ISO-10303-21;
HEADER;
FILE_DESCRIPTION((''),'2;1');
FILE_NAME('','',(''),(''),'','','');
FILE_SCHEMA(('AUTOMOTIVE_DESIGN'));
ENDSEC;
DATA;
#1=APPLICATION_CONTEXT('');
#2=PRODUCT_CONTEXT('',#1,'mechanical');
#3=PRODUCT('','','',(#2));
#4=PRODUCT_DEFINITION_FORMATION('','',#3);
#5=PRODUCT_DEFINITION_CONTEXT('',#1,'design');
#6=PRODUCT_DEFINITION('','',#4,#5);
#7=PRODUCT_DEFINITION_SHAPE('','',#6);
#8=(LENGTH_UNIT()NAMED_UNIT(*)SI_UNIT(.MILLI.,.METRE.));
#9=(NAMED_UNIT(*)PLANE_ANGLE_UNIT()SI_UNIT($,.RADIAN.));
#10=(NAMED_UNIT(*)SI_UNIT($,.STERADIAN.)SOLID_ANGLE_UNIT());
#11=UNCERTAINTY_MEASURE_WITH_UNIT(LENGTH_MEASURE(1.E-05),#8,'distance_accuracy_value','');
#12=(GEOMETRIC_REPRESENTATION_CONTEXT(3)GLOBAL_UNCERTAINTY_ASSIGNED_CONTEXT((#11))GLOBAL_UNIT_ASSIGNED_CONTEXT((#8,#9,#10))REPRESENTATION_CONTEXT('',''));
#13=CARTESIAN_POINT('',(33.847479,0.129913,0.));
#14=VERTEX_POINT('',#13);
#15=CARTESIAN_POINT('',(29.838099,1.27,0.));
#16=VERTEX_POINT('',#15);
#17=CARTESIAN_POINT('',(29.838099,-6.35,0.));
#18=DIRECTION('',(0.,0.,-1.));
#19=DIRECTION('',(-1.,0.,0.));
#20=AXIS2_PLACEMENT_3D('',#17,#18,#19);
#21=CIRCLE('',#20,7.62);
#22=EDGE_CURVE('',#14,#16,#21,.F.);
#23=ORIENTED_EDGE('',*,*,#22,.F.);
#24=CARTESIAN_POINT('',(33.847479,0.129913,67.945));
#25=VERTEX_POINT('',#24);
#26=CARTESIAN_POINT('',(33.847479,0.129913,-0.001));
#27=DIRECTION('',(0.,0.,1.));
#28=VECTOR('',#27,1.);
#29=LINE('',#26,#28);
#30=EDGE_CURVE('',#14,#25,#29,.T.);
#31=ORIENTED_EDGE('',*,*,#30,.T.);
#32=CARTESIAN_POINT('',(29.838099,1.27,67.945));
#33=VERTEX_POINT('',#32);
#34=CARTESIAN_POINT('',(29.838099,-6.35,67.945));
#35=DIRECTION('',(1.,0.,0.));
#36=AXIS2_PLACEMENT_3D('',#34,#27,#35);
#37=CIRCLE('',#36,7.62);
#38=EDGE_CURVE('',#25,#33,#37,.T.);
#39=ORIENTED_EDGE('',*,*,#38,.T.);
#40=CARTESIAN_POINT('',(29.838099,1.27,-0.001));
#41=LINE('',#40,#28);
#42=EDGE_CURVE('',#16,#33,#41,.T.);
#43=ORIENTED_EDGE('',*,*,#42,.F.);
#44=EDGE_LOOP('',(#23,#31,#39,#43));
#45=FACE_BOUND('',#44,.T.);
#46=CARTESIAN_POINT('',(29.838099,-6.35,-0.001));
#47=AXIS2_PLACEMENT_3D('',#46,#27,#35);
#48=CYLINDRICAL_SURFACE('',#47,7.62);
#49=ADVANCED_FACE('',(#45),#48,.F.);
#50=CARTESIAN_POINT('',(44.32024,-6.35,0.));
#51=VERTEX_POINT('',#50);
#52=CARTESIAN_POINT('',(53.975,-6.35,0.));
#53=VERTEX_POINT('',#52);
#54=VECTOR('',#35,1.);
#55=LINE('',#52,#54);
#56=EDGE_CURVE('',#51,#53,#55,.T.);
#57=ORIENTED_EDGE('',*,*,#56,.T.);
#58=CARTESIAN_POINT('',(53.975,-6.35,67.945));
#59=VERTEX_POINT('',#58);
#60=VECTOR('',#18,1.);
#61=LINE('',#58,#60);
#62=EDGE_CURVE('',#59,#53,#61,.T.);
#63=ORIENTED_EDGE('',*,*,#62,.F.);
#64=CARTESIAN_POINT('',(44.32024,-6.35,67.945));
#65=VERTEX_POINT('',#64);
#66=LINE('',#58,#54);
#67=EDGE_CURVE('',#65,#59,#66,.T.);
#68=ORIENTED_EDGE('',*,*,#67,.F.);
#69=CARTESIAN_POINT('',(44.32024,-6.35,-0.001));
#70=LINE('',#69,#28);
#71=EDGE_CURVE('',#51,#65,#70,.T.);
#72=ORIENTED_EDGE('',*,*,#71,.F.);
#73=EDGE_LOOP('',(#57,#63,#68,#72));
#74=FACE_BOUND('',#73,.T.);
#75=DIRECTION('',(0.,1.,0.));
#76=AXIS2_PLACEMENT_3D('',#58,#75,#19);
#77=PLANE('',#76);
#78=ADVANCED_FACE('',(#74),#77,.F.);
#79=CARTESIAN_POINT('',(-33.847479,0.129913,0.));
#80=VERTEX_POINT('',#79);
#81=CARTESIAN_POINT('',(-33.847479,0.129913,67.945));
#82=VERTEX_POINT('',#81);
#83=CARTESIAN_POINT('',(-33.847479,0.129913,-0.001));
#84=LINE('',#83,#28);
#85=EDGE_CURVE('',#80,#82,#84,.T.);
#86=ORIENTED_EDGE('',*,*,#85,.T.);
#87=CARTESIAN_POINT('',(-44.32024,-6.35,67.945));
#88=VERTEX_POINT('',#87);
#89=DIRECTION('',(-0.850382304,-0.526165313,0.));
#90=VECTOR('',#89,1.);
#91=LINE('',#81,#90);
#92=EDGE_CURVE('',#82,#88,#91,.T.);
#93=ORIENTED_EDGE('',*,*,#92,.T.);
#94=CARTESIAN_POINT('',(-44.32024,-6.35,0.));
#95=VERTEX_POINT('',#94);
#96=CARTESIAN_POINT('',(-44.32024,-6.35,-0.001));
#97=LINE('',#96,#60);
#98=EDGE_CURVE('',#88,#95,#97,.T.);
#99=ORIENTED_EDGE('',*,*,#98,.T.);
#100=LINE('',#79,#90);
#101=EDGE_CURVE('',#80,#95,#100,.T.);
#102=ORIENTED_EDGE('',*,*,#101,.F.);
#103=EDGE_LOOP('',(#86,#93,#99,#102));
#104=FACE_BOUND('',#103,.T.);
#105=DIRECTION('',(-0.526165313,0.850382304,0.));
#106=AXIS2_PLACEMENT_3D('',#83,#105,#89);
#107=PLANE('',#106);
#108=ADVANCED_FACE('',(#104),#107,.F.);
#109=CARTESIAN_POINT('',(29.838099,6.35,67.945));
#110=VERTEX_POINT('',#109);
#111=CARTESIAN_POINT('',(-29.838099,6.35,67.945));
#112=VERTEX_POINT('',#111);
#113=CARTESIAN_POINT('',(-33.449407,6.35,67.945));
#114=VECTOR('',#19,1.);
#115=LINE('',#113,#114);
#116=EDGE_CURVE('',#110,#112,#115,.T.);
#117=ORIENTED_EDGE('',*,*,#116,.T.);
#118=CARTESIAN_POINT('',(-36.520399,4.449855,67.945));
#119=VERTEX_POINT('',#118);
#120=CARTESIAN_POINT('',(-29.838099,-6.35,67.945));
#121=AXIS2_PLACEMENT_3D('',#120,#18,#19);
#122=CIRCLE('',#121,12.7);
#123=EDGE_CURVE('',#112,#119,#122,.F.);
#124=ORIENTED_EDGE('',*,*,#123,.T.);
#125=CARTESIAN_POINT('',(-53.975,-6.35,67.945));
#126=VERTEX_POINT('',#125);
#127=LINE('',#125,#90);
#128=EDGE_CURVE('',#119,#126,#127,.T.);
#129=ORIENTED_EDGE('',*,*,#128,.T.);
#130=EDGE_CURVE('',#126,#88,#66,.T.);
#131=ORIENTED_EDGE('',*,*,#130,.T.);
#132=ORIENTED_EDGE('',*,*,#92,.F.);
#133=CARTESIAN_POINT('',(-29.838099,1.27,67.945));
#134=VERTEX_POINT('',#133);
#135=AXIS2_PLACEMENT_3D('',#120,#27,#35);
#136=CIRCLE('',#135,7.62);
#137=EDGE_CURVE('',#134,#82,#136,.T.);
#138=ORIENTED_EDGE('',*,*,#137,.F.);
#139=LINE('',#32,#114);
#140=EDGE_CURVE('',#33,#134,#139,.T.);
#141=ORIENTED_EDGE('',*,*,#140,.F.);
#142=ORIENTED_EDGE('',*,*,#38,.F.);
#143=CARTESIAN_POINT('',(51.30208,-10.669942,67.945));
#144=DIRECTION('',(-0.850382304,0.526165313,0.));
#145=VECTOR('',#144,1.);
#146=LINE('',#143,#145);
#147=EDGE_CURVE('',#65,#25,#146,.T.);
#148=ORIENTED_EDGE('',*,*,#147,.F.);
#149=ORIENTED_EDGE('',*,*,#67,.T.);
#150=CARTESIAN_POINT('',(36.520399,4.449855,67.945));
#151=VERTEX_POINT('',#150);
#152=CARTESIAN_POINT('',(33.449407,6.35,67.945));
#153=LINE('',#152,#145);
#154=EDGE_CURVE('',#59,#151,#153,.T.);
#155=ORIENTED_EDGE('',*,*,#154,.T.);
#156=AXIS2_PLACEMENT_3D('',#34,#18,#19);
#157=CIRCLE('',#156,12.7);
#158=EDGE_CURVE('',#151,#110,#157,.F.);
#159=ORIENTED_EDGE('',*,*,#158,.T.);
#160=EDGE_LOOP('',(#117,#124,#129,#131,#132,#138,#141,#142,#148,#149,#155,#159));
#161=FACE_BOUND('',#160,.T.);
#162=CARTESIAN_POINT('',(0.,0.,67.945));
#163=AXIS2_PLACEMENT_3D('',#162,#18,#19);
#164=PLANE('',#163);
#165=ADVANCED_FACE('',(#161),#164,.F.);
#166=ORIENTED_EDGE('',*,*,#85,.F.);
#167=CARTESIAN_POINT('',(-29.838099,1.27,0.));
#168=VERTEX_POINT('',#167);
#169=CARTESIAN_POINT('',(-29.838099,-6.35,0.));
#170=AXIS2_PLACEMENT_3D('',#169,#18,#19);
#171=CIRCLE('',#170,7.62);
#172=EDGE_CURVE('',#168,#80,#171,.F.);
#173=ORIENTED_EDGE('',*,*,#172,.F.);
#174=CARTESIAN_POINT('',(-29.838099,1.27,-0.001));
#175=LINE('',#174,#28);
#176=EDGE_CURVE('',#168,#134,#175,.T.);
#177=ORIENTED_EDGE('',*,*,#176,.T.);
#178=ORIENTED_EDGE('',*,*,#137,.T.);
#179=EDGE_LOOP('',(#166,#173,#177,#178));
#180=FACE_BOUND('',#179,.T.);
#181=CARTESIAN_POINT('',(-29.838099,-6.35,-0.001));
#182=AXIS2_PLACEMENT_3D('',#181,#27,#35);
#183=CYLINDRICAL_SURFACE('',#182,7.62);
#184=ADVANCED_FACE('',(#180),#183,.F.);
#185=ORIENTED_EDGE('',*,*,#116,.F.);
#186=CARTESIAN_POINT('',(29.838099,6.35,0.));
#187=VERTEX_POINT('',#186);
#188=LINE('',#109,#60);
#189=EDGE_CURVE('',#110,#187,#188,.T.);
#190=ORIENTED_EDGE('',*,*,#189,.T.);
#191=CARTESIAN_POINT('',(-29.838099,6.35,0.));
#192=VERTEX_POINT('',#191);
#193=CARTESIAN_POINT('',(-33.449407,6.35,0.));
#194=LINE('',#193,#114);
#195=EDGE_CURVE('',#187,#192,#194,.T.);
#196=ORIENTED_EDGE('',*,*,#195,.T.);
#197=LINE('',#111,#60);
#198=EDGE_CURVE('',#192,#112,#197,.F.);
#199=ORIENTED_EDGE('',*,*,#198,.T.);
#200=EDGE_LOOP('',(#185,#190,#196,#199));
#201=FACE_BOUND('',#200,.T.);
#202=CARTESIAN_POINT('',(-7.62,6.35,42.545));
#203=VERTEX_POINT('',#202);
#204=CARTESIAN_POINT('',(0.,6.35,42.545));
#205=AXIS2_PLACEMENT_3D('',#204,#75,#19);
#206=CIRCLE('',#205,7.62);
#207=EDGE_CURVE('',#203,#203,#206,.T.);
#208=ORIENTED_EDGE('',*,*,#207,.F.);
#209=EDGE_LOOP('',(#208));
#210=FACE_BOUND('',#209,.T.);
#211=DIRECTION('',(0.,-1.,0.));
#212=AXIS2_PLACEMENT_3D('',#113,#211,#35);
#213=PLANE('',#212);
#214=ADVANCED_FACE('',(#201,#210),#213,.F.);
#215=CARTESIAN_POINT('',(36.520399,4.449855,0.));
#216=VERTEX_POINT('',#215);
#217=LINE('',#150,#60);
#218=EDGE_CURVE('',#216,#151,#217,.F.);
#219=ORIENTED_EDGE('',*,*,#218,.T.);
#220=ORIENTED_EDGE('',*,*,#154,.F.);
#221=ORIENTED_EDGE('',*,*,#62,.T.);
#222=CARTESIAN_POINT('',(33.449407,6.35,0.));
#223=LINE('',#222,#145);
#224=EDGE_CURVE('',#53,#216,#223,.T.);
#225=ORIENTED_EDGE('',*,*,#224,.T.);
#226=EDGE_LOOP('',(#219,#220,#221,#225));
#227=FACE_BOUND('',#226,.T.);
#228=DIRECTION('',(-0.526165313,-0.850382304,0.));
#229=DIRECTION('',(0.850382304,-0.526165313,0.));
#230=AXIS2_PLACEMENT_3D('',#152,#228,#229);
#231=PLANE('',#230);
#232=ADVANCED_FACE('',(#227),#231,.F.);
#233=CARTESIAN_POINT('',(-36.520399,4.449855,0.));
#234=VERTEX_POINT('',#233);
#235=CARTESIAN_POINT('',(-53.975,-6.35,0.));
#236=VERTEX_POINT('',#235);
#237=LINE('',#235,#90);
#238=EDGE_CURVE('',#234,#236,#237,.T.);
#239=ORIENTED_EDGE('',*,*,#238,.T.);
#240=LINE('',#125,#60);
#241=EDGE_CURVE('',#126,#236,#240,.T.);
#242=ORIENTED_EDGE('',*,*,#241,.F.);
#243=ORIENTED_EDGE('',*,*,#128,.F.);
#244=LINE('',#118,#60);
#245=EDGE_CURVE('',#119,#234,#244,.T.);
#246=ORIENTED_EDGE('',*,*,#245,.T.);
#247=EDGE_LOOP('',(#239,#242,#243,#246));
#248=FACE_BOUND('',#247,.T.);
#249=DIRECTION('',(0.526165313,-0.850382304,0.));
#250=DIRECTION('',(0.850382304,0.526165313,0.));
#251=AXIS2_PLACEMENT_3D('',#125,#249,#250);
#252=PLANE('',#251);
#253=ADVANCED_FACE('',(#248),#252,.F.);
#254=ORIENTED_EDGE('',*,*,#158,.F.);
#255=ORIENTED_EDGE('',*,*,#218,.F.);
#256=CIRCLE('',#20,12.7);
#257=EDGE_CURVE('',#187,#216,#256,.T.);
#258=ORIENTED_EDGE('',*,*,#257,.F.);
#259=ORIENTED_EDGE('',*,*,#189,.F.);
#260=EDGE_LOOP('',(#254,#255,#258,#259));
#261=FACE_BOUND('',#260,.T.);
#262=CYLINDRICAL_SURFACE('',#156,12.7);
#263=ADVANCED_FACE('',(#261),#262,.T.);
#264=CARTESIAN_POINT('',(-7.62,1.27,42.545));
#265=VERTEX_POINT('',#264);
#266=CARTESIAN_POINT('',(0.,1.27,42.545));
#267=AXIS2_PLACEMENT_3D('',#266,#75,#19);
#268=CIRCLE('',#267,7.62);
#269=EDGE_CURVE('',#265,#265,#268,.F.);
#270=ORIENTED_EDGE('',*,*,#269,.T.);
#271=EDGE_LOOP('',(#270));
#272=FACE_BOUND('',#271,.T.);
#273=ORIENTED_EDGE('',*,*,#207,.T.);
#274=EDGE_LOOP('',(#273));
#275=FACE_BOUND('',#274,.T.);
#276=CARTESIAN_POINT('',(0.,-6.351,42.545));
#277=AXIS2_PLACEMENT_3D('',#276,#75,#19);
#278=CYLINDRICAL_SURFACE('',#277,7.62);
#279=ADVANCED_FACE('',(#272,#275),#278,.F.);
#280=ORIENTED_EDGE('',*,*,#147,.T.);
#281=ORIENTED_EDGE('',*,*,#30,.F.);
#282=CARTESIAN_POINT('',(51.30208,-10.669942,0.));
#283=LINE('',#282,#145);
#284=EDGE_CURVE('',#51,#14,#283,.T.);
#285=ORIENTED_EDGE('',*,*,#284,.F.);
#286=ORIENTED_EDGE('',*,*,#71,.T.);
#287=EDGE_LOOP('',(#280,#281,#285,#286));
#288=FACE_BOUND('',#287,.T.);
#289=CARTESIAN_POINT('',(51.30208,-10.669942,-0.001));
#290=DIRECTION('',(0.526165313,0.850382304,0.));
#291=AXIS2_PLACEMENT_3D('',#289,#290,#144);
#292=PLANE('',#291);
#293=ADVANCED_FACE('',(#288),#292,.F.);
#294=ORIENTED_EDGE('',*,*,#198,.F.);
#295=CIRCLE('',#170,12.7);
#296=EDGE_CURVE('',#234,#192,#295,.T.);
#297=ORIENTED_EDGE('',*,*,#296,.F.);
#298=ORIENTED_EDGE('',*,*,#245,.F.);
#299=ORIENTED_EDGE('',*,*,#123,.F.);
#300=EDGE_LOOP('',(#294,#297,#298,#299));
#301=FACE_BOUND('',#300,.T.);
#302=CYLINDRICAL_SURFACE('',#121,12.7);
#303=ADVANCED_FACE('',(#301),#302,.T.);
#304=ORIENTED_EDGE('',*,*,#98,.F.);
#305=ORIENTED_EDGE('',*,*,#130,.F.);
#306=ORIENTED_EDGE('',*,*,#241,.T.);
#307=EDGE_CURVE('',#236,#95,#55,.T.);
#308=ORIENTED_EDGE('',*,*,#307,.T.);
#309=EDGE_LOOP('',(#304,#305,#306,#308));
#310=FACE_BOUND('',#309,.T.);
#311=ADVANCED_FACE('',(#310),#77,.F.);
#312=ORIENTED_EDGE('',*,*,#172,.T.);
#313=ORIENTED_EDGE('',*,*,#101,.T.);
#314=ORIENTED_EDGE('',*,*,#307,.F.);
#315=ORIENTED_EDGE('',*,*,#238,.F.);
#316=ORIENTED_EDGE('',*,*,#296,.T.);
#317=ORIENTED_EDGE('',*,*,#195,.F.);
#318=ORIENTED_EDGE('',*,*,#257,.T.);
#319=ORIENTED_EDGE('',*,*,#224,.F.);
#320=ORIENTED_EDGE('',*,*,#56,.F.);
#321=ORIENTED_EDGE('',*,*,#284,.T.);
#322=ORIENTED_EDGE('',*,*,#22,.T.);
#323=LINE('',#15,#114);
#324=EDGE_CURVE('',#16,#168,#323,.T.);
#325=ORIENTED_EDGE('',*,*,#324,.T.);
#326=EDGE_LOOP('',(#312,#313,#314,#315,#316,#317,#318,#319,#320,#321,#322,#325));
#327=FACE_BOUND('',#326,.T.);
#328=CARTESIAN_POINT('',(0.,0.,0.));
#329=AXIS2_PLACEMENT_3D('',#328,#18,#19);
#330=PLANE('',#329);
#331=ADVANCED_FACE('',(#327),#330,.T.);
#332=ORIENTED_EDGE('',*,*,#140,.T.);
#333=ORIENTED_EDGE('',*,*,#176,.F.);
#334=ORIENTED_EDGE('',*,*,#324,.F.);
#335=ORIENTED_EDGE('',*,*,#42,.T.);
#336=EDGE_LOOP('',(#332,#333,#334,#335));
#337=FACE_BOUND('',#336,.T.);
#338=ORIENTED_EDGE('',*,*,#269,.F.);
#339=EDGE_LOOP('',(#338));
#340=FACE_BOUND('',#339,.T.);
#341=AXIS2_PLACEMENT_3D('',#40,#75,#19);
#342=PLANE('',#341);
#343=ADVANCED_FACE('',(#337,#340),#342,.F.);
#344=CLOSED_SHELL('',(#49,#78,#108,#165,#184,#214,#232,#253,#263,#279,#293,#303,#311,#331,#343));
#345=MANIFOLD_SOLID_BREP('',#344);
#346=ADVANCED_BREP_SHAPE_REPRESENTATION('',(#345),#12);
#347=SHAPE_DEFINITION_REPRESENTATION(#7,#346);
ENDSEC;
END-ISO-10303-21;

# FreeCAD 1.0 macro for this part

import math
import FreeCAD as App
import Part
import Sketcher
Q = App.Units.Quantity


def edges_at(feature, points):
    """Names of the edges that pass closest to the given points."""
    edges = feature.Shape.Edges
    near = lambda p: min(range(len(edges)), key=lambda i: edges[i].distToShape(Part.Vertex(*p))[0])
    return sorted({f"Edge{near(p) + 1}" for p in points})

doc = App.newDocument("Part")
params = doc.addObject("Spreadsheet::Sheet", "Params")
for row, (alias, value) in enumerate([
    ("sketch1_width", "4.25 in"),
    ("pad1_length", "2.675 in"),
    ("fillet_radius", "0.5 in"),
    ("sketch2_radius", "0.3 in"),
    ("sketch3_diameter", "0.6 in"),
], start=1):
    params.set(f"A{row}", alias)
    params.set(f"B{row}", "=" + value)
    params.setAlias(f"B{row}", alias)

body = doc.addObject("PartDesign::Body", "Body")

# Sketch on XY plane
sketch1 = body.newObject("Sketcher::SketchObject", "Sketch")
sketch1.AttachmentSupport = (doc.getObject("XY_Plane"), [""])
sketch1.MapMode = "FlatFace"
sketch1.addGeometry(Part.LineSegment(App.Vector(-33.449407, 6.35, 0), App.Vector(-53.975, -6.35, 0)), False)
sketch1.addGeometry(Part.LineSegment(App.Vector(-53.975, -6.35, 0), App.Vector(53.975, -6.35, 0)), False)
sketch1.addGeometry(Part.LineSegment(App.Vector(53.975, -6.35, 0), App.Vector(33.449407, 6.35, 0)), False)
sketch1.addGeometry(Part.LineSegment(App.Vector(33.449407, 6.35, 0), App.Vector(-33.449407, 6.35, 0)), False)
sketch1.addConstraint(Sketcher.Constraint("Coincident", 0, 2, 1, 1))
sketch1.addConstraint(Sketcher.Constraint("Coincident", 1, 2, 2, 1))
sketch1.addConstraint(Sketcher.Constraint("Coincident", 2, 2, 3, 1))
sketch1.addConstraint(Sketcher.Constraint("Coincident", 3, 2, 0, 1))
sketch1.addConstraint(Sketcher.Constraint("Horizontal", 1))
sketch1.addConstraint(Sketcher.Constraint("Horizontal", 3))
sketch1.addConstraint(Sketcher.Constraint("Equal", 0, 2))
sketch1.addConstraint(Sketcher.Constraint("DistanceX", 1, 1, 1, 2, Q("4.25 in")))
sketch1.addConstraint(Sketcher.Constraint("DistanceY", 1, 2, 2, 2, Q("0.5 in")))
sketch1.addConstraint(Sketcher.Constraint("DistanceY", 0, 2, -1, 1, Q("0.25 in")))
sketch1.addConstraint(Sketcher.Constraint("DistanceX", 0, 2, -1, 1, Q("2.125 in")))
sketch1.addConstraint(Sketcher.Constraint("Distance", 0, 24.136901))
sketch1.setExpression("Constraints[7]", "Params.sketch1_width")
pad1 = body.newObject("PartDesign::Pad", "Pad")
pad1.Profile = sketch1
pad1.setExpression("Length", "Params.pad1_length")
doc.recompute()

fillet = body.newObject("PartDesign::Fillet", "Fillet")
fillet.Base = (pad1, edges_at(pad1, [(-33.449, 6.35, 33.972), (33.449, 6.35, 33.972)]))
fillet.setExpression("Radius", "Params.fillet_radius")

# Sketch on XY plane
sketch2 = body.newObject("Sketcher::SketchObject", "Sketch001")
sketch2.AttachmentSupport = (doc.getObject("XY_Plane"), [""])
sketch2.MapMode = "FlatFace"
sketch2.AttachmentOffset = App.Placement(App.Vector(0, 0, 2.675 * 25.4), App.Rotation())
sketch2.addGeometry(Part.LineSegment(App.Vector(-51.30208, -10.669942, 0), App.Vector(51.30208, -10.669942, 0)), False)
sketch2.addGeometry(Part.LineSegment(App.Vector(51.30208, -10.669942, 0), App.Vector(33.847479, 0.129913, 0)), False)
sketch2.addGeometry(Part.ArcOfCircle(Part.Circle(App.Vector(29.838099, -6.35, 0), App.Vector(0, 0, 1), 7.62), math.radians(58.253275), math.radians(90)), False)
sketch2.addGeometry(Part.LineSegment(App.Vector(29.838099, 1.27, 0), App.Vector(-29.838099, 1.27, 0)), False)
sketch2.addGeometry(Part.ArcOfCircle(Part.Circle(App.Vector(-29.838099, -6.35, 0), App.Vector(0, 0, 1), 7.62), math.radians(90), math.radians(121.746725)), False)
sketch2.addGeometry(Part.LineSegment(App.Vector(-33.847479, 0.129913, 0), App.Vector(-51.30208, -10.669942, 0)), False)
sketch2.addConstraint(Sketcher.Constraint("Coincident", 0, 2, 1, 1))
sketch2.addConstraint(Sketcher.Constraint("Tangent", 1, 2, 2, 1))
sketch2.addConstraint(Sketcher.Constraint("Tangent", 2, 2, 3, 1))
sketch2.addConstraint(Sketcher.Constraint("Tangent", 3, 2, 4, 1))
sketch2.addConstraint(Sketcher.Constraint("Tangent", 4, 2, 5, 1))
sketch2.addConstraint(Sketcher.Constraint("Coincident", 5, 2, 0, 1))
sketch2.addConstraint(Sketcher.Constraint("Horizontal", 0))
sketch2.addConstraint(Sketcher.Constraint("Horizontal", 3))
sketch2.addConstraint(Sketcher.Constraint("Equal", 2, 4))
sketch2.addConstraint(Sketcher.Constraint("Symmetric", 1, 2, 4, 2, -2))
sketch2.addConstraint(Sketcher.Constraint("Radius", 2, Q("0.3 in")))
sketch2.addConstraint(Sketcher.Constraint("DistanceY", 2, 3, -1, 1, Q("0.25 in")))
sketch2.addConstraint(Sketcher.Constraint("DistanceX", 3, 2, 3, 1, 59.676198))
sketch2.addConstraint(Sketcher.Constraint("DistanceX", 0, 1, 0, 2, 102.60416))
sketch2.addConstraint(Sketcher.Constraint("DistanceX", 1, 2, 0, 2, 17.454601))
sketch2.setExpression("Constraints[10]", "Params.sketch2_radius")
pocket1 = body.newObject("PartDesign::Pocket", "Pocket")
pocket1.Profile = sketch2
pocket1.Type = "UpToFirst"

# Sketch on XZ plane
sketch3 = body.newObject("Sketcher::SketchObject", "Sketch002")
sketch3.AttachmentSupport = (doc.getObject("XZ_Plane"), [""])
sketch3.MapMode = "FlatFace"
sketch3.AttachmentOffset = App.Placement(App.Vector(0, 0, -0.25 * 25.4), App.Rotation())
sketch3.addGeometry(Part.Circle(App.Vector(0, 42.545, 0), App.Vector(0, 0, 1), 7.62), False)
sketch3.addConstraint(Sketcher.Constraint("PointOnObject", 0, 3, -2))
sketch3.addConstraint(Sketcher.Constraint("Diameter", 0, Q("0.6 in")))
sketch3.addConstraint(Sketcher.Constraint("DistanceY", -1, 1, 0, 3, Q("1.675 in")))
sketch3.setExpression("Constraints[1]", "Params.sketch3_diameter")
pocket2 = body.newObject("PartDesign::Pocket", "Pocket001")
pocket2.Profile = sketch3
pocket2.Type = "UpToFirst"
pocket2.Reversed = True

doc.recompute()
